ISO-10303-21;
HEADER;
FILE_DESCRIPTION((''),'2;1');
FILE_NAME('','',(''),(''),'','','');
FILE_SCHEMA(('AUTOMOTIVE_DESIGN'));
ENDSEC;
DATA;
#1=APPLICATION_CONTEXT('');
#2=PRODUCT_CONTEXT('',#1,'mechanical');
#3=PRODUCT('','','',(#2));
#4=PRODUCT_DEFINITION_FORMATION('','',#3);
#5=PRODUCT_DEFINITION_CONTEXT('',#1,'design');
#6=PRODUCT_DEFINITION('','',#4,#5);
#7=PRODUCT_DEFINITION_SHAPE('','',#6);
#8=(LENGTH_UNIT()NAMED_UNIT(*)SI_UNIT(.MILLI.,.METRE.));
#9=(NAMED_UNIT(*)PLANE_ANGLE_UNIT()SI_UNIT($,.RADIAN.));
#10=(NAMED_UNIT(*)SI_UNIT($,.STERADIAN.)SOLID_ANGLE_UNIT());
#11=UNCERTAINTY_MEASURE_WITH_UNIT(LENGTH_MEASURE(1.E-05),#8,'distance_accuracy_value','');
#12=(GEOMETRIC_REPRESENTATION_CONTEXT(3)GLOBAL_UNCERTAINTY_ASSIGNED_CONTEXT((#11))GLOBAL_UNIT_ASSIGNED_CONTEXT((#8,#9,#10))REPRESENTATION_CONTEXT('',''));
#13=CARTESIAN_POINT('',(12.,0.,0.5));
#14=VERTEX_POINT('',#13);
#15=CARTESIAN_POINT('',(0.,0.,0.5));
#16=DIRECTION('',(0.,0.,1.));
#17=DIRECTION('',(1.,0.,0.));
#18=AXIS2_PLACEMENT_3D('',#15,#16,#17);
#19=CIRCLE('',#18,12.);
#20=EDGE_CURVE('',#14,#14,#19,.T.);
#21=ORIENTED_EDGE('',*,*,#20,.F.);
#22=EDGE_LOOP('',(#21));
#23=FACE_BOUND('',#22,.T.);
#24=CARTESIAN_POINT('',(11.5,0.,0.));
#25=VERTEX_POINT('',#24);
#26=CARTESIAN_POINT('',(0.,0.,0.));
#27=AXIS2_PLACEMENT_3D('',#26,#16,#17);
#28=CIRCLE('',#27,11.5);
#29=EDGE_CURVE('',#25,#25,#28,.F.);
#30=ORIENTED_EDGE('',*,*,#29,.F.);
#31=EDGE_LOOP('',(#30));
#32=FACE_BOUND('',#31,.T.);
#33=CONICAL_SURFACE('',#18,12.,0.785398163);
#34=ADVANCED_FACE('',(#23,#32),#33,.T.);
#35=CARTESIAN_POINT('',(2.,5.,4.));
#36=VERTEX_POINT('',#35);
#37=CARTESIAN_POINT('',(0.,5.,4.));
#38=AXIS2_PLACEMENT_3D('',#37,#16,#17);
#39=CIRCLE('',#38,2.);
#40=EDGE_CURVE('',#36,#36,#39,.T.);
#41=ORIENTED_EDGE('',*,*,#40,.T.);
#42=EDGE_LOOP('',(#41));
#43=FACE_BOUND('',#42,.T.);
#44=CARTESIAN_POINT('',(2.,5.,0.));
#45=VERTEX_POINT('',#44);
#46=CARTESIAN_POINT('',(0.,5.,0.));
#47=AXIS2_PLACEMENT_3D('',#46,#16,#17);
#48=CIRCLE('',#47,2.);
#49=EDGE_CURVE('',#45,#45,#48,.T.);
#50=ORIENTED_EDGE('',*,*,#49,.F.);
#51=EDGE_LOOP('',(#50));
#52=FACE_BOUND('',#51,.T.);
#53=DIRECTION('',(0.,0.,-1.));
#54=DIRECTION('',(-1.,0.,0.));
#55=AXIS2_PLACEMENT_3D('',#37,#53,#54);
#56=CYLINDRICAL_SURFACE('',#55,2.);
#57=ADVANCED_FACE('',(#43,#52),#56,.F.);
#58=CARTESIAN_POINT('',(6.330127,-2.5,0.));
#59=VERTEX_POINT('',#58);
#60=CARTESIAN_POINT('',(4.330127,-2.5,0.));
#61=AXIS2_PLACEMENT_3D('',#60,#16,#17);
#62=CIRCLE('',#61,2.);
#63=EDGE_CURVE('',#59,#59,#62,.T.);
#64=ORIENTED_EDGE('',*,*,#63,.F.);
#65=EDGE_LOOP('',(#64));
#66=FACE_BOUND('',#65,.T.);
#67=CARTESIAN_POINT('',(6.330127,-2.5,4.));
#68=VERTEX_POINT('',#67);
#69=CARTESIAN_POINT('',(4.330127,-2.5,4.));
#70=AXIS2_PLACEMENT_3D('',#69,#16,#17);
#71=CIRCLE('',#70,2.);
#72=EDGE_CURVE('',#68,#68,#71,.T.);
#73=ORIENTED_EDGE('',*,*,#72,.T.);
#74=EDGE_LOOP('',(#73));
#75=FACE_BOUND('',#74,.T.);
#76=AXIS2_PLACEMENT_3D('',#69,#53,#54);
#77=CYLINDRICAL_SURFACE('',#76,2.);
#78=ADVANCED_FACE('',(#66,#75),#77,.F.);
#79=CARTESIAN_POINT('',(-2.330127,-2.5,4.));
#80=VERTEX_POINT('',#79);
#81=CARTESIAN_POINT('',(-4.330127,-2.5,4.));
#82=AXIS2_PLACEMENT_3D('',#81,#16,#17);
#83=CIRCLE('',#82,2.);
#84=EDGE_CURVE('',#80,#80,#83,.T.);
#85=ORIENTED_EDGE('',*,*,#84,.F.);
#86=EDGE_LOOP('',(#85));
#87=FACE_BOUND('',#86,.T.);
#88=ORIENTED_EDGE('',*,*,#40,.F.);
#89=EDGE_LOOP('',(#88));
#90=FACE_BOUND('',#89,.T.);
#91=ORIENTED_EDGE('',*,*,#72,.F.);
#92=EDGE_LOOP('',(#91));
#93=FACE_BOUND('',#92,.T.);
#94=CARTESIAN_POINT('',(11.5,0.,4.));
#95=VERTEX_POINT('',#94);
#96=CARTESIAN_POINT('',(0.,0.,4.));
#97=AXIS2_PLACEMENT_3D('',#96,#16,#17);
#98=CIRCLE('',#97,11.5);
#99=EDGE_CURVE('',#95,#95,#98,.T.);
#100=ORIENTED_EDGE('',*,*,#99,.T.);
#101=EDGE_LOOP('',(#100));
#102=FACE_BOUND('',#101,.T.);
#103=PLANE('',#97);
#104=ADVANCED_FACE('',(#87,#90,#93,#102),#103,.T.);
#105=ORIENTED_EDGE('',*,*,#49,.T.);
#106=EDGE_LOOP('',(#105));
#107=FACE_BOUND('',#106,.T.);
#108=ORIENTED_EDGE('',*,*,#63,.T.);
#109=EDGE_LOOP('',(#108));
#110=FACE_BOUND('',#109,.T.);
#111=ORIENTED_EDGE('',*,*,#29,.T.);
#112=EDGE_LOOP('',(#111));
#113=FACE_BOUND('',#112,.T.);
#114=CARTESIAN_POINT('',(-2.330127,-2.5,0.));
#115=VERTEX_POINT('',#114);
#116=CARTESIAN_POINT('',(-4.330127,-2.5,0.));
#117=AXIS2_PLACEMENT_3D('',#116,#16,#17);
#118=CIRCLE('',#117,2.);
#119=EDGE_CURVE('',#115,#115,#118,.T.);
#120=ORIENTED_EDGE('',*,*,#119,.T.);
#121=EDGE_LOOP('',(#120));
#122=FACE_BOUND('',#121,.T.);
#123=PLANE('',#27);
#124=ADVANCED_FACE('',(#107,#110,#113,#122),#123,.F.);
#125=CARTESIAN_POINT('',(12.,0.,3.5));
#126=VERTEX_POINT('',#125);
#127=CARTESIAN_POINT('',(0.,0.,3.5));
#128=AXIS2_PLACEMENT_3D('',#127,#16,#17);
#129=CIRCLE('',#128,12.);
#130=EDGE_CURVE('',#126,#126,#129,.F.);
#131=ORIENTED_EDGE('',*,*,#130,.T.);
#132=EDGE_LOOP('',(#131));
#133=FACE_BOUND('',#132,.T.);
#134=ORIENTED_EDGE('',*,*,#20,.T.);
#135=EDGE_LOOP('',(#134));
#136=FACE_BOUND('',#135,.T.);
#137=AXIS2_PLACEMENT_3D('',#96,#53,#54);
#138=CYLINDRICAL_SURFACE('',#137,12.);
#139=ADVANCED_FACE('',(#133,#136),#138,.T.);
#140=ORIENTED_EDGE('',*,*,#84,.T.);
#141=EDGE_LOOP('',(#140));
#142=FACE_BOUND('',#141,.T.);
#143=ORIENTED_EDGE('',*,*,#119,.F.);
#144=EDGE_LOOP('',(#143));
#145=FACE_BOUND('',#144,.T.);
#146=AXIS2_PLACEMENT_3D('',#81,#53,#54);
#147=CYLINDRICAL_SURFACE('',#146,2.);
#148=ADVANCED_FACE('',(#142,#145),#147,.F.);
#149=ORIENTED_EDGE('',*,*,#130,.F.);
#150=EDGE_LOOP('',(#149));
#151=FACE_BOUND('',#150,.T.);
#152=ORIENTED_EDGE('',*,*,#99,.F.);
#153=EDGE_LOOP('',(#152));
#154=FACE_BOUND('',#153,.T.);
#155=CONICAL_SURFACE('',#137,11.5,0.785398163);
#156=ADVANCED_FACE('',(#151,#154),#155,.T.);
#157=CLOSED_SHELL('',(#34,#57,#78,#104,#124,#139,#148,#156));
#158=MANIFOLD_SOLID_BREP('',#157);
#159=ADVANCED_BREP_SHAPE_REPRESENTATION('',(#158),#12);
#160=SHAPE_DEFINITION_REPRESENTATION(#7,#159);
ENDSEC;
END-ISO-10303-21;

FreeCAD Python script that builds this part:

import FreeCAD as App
import Part
import Sketcher


def edges_at(feature, points):
    """Names of the edges that pass closest to the given points."""
    edges = feature.Shape.Edges
    near = lambda p: min(range(len(edges)), key=lambda i: edges[i].distToShape(Part.Vertex(*p))[0])
    return sorted({f"Edge{near(p) + 1}" for p in points})

doc = App.newDocument("Part")
body = doc.addObject("PartDesign::Body", "Body")

# Sketch on XY plane
sketch1 = body.newObject("Sketcher::SketchObject", "Sketch")
sketch1.AttachmentSupport = (doc.getObject("XY_Plane"), [""])
sketch1.MapMode = "FlatFace"
sketch1.addGeometry([
    Part.Circle(App.Vector(0, 0, 0), App.Vector(0, 0, 1), 12),
    Part.Circle(App.Vector(-4.3, -2.5, 0), App.Vector(0, 0, 1), 2),
    Part.Circle(App.Vector(4.3, -2.5, 0), App.Vector(0, 0, 1), 2),
    Part.Circle(App.Vector(0, 5, 0), App.Vector(0, 0, 1), 2),
], False)
sketch1.addConstraint([
    Sketcher.Constraint("Coincident", 0, 3, -1, 1),
    Sketcher.Constraint("Equal", 1, 2),
    Sketcher.Constraint("Equal", 2, 3),
    Sketcher.Constraint("Symmetric", 1, 3, 2, 3, -2),
    Sketcher.Constraint("PointOnObject", 3, 3, -2),
    Sketcher.Constraint("Diameter", 0, 24.0),
    Sketcher.Constraint("Diameter", 1, 4.0),
    Sketcher.Constraint("DistanceY", -1, 1, 3, 3, 5.0),
    Sketcher.Constraint("DistanceY", 1, 3, -1, 1, 2.5),
    Sketcher.Constraint("DistanceX", 1, 3, -1, 1, 4.330127),
])
pad1 = body.newObject("PartDesign::Pad", "Pad")
pad1.Profile = sketch1
pad1.Length = 4
doc.recompute()

chamfer = body.newObject("PartDesign::Chamfer", "Chamfer")
chamfer.Base = (pad1, edges_at(pad1, [(-12, 0, 0), (-12, 0, 4)]))
chamfer.Size = 0.5

doc.recompute()
